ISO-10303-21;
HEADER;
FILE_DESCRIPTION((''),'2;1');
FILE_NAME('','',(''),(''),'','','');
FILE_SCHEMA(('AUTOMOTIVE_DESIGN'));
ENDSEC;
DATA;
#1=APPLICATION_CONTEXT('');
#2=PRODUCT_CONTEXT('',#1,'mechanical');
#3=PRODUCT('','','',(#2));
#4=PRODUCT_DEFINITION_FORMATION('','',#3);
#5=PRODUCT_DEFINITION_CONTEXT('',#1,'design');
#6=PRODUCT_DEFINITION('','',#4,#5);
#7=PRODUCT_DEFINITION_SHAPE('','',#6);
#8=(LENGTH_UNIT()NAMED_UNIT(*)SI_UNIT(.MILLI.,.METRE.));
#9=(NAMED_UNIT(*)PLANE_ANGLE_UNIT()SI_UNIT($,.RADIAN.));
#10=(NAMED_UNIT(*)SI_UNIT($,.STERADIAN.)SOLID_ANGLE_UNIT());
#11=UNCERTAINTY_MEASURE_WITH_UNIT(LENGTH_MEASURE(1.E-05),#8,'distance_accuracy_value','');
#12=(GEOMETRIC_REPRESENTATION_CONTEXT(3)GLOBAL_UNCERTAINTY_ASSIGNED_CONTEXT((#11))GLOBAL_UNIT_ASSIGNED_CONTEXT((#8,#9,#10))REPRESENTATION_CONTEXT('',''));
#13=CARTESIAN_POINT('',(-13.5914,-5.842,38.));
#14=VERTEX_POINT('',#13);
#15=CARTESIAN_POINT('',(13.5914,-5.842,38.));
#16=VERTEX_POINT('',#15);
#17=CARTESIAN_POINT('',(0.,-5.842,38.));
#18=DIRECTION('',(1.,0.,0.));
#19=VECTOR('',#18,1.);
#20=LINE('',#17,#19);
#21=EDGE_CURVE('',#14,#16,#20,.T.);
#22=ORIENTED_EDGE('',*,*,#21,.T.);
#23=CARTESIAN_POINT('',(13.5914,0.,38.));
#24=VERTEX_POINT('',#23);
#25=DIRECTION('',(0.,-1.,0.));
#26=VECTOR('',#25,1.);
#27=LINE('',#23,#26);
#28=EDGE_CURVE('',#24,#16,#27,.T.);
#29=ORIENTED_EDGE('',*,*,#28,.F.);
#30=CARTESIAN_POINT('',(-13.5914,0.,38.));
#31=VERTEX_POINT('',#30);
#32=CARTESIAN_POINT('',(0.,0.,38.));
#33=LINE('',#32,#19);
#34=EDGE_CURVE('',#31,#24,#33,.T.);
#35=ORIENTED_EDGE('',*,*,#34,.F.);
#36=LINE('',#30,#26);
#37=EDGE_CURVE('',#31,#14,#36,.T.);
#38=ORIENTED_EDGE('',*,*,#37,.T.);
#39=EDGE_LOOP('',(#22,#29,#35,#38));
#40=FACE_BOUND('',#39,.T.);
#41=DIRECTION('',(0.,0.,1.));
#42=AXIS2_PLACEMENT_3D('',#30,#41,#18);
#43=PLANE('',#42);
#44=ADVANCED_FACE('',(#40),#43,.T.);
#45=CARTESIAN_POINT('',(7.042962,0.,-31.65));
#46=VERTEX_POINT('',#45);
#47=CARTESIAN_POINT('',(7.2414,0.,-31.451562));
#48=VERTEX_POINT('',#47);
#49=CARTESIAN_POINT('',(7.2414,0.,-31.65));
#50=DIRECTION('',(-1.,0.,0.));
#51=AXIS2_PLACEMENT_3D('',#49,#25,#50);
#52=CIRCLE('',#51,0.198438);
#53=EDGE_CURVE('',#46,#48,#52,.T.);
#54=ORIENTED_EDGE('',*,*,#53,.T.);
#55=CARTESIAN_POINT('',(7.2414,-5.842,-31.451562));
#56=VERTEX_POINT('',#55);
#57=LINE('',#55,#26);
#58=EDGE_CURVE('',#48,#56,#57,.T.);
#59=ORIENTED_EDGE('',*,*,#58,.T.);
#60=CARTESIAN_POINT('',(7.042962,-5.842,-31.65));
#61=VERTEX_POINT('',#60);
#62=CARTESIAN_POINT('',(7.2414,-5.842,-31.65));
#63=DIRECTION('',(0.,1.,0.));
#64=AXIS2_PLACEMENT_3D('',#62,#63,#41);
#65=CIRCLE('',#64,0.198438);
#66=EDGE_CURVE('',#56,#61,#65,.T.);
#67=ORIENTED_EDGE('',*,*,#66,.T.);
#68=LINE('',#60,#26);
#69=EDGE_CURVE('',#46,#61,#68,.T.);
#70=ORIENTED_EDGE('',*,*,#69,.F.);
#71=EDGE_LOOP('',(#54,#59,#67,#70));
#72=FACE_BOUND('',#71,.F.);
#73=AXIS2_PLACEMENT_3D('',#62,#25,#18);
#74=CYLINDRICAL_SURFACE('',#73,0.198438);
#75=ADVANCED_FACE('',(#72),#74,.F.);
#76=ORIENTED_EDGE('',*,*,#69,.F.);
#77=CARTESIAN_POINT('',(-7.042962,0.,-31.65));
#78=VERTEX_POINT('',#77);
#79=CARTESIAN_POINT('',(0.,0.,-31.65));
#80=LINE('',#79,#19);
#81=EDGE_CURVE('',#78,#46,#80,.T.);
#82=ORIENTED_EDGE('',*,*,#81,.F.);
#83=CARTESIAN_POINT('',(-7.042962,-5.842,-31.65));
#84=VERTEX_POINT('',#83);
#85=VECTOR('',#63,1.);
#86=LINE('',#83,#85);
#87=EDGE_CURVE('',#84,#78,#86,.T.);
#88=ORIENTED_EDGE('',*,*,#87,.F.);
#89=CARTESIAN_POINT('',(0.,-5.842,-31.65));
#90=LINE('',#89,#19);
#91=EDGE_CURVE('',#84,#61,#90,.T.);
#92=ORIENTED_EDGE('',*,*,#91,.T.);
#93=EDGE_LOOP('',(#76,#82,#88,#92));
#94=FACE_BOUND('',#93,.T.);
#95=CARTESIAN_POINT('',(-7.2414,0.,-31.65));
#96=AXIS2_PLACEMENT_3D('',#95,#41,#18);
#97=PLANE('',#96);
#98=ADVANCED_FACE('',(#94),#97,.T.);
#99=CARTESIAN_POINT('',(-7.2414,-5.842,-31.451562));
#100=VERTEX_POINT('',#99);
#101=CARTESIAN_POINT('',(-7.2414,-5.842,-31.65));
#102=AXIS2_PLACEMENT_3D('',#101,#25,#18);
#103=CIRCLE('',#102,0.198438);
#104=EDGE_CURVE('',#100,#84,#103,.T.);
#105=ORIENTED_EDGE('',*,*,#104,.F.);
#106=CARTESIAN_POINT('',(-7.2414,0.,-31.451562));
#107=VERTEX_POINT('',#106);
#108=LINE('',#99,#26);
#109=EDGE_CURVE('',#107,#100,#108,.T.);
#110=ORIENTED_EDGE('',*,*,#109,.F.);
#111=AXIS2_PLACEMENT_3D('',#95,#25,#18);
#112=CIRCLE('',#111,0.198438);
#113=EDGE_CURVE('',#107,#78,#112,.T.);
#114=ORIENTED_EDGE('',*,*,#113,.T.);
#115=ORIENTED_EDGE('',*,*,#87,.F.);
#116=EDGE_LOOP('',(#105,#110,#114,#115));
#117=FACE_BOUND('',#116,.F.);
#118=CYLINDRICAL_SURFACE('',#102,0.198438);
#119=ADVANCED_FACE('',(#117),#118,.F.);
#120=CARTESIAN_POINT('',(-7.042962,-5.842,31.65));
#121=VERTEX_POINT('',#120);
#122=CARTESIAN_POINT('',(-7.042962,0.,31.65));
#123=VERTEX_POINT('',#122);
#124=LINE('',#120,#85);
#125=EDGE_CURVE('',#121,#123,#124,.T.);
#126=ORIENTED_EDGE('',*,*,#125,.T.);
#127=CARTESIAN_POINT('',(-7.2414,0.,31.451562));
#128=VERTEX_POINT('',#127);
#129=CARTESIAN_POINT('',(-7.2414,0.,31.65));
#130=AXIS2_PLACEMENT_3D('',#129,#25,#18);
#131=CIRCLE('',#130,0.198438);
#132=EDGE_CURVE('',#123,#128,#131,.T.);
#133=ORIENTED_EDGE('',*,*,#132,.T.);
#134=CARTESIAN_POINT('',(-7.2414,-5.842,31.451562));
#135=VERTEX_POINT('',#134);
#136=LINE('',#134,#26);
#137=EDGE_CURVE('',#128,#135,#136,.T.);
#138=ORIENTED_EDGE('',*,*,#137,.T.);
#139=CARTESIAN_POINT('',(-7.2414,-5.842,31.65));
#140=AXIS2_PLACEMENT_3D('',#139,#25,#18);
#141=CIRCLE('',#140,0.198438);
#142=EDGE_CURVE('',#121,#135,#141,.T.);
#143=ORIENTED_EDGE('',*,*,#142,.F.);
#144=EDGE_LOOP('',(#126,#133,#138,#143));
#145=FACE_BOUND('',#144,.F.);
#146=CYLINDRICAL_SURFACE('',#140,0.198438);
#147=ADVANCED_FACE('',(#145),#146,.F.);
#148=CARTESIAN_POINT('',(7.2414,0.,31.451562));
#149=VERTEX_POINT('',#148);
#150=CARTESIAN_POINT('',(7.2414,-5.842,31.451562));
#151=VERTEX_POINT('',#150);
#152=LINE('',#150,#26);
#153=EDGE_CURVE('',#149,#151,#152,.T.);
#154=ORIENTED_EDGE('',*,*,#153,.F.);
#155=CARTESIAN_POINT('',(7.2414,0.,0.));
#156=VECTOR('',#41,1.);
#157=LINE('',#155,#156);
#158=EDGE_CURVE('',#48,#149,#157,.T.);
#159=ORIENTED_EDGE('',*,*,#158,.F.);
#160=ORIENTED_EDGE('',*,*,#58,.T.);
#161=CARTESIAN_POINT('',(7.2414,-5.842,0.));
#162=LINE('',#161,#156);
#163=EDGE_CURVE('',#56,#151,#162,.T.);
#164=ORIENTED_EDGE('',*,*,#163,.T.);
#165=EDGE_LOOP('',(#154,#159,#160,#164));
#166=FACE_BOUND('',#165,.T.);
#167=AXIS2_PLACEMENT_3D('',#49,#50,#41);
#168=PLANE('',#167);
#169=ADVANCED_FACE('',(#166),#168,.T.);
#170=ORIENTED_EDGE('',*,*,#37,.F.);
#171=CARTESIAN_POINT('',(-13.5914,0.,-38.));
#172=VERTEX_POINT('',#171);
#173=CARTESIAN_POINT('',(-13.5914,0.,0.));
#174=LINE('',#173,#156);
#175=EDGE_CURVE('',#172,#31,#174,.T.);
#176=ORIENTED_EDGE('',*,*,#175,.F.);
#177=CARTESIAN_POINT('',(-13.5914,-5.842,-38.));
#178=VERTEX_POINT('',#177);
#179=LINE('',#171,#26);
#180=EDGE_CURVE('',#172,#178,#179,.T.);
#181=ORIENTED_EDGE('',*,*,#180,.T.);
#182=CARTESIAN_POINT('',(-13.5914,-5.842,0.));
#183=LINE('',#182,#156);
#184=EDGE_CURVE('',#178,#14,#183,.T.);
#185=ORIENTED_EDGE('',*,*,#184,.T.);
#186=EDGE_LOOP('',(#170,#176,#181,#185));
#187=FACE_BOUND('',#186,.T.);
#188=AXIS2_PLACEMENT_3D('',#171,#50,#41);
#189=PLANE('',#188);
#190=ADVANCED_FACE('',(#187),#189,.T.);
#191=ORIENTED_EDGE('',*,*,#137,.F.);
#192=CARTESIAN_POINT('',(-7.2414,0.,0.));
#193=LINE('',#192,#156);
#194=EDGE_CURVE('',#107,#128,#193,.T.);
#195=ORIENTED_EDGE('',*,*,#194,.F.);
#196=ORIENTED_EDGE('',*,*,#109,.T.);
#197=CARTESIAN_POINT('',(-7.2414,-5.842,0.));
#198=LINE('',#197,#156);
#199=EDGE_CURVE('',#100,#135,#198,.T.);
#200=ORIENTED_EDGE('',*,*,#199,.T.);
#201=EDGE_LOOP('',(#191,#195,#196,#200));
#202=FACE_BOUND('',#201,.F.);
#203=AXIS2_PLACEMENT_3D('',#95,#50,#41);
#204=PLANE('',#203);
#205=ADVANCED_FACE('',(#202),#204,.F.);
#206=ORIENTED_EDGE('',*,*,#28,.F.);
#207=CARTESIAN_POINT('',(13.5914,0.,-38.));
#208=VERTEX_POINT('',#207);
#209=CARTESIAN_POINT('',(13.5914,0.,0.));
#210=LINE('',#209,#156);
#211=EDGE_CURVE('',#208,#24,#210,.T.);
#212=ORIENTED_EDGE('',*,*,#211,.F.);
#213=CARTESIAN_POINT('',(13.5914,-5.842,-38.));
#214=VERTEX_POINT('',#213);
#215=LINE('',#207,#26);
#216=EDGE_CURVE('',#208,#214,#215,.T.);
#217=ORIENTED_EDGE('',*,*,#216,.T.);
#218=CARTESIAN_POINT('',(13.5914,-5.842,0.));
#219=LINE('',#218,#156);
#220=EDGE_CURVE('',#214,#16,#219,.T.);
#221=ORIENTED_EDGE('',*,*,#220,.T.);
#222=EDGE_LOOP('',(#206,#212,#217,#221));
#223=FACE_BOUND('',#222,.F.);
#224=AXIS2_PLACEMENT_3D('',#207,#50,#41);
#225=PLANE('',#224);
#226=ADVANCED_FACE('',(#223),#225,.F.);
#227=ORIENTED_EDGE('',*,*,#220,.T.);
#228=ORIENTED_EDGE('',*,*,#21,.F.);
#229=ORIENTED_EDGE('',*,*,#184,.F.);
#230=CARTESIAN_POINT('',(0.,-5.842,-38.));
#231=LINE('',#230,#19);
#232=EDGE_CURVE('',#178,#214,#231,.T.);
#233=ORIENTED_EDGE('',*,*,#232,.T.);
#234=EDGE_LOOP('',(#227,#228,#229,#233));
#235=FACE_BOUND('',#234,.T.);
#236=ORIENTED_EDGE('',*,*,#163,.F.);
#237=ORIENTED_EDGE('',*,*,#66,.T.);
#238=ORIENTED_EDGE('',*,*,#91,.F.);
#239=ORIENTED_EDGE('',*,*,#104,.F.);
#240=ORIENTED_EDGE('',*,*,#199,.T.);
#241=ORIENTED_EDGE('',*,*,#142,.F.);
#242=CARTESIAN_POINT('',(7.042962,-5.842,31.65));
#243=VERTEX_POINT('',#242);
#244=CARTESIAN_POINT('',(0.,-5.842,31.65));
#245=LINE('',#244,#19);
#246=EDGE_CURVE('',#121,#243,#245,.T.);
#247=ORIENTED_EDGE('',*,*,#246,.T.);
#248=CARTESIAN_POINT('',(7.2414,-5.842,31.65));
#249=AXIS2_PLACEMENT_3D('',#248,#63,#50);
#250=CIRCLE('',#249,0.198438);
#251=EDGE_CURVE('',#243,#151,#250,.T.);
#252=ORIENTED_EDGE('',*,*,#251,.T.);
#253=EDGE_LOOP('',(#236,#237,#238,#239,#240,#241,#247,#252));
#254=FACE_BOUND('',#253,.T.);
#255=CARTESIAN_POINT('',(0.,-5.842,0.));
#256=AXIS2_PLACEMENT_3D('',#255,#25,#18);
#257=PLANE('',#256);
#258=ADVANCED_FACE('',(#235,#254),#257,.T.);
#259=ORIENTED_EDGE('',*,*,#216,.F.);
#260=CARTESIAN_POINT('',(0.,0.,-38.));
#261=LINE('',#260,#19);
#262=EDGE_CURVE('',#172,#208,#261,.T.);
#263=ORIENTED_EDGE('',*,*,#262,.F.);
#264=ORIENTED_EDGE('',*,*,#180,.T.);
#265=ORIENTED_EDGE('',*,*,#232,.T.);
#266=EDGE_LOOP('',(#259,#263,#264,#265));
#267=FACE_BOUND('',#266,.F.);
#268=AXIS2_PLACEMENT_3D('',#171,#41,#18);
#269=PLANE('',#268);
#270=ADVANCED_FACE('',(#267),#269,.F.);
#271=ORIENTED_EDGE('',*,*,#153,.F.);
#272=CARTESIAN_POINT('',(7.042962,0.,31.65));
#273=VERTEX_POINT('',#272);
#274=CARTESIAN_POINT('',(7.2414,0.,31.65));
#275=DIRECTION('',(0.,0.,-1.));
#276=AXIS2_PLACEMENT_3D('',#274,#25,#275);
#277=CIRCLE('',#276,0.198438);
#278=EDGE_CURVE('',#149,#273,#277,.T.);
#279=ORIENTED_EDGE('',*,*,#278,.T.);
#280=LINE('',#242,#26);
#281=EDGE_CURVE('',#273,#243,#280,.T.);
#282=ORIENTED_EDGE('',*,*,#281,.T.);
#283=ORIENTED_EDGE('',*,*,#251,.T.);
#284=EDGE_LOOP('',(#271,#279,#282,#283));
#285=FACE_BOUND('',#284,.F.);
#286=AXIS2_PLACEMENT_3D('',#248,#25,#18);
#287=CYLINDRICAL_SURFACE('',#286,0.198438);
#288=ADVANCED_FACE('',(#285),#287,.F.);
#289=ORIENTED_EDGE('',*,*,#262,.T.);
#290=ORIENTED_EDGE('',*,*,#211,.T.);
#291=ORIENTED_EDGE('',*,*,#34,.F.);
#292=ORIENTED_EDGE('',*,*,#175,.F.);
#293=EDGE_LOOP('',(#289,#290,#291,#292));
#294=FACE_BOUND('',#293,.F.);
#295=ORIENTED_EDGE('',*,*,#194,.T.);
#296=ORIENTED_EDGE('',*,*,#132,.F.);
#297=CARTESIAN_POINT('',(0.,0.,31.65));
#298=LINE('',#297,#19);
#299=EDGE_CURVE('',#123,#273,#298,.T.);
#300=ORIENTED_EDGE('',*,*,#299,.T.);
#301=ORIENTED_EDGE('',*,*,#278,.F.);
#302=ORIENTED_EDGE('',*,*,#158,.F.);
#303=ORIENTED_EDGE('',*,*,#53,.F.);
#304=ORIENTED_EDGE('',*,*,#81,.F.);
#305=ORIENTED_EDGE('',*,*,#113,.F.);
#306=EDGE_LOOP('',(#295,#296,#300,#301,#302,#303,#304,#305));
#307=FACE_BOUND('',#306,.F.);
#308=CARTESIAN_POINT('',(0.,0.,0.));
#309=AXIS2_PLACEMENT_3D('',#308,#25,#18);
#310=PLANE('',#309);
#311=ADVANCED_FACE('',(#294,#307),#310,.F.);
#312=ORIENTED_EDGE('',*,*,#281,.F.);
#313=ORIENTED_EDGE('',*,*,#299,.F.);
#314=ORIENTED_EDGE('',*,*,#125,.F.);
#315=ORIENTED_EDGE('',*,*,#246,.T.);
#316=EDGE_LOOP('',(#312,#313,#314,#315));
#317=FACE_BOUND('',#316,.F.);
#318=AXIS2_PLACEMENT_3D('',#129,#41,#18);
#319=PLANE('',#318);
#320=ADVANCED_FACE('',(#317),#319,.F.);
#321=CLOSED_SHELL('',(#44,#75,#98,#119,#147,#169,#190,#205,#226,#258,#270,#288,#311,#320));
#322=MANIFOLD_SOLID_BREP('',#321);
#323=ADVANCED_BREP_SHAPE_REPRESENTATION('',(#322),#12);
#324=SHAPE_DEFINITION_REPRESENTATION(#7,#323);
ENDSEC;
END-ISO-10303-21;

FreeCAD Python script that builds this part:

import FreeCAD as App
import Part
import Sketcher
from FreeCAD import Vector


def add_polygon(sketch, points):
    """Adds a closed chain of lines whose ends are joined by coincident constraints."""
    first, n = sketch.GeometryCount, len(points)
    for a, b in zip(points, points[1:] + points[:1]):
        sketch.addGeometry(Part.LineSegment(App.Vector(*a, 0), App.Vector(*b, 0)), False)
    for i in range(n):
        sketch.addConstraint(Sketcher.Constraint("Coincident", first + i, 2, first + (i + 1) % n, 1))

doc = App.newDocument("Part")
body = doc.addObject("PartDesign::Body", "Body")

sketch1 = body.newObject("Sketcher::SketchObject", "Sketch")
sketch1.AttachmentSupport = (doc.getObject("XZ_Plane"), [""])
sketch1.MapMode = "FlatFace"
add_polygon(sketch1, [(-14, 38), (-14, -38), (14, -38), (14, 38)])
add_polygon(sketch1, [(7, -32), (-7, -32), (-7, 32), (7, 32)])
sketch1.addConstraint([
    Sketcher.Constraint("Vertical", 0),
    Sketcher.Constraint("Horizontal", 1),
    Sketcher.Constraint("Vertical", 2),
    Sketcher.Constraint("Horizontal", 3),
    Sketcher.Constraint("Horizontal", 4),
    Sketcher.Constraint("Vertical", 5),
    Sketcher.Constraint("Horizontal", 6),
    Sketcher.Constraint("Vertical", 7),
    Sketcher.Constraint("Symmetric", 0, 2, 2, 2, -1, 1),
    Sketcher.Constraint("Symmetric", 4, 2, 6, 2, -1, 1),
    Sketcher.Constraint("DistanceY", 0, 2, 0, 1, 76.0),
    Sketcher.Constraint("DistanceY", 5, 1, 5, 2, 63.3),
    Sketcher.Constraint("DistanceX", 0, 2, 4, 2, 6.35),
    Sketcher.Constraint("DistanceX", 1, 1, 1, 2, 27.1828),
])
pad1 = body.newObject("PartDesign::Pad", "Pad")
pad1.Profile = sketch1
pad1.Length = 5.842

sketch2 = body.newObject("Sketcher::SketchObject", "Sketch001")
sketch2.AttachmentSupport = (doc.getObject("XZ_Plane"), [""])
sketch2.MapMode = "FlatFace"
sketch2.AttachmentOffset = App.Placement(Vector(0, 0, 5.842), App.Rotation())
sketch2.addGeometry([
    Part.Circle(Vector(-7.24, 31.65, 0), Vector(0, 0, 1), 0.2),
    Part.Circle(Vector(7.24, 31.65, 0), Vector(0, 0, 1), 0.2),
    Part.Circle(Vector(-7.24, -31.65, 0), Vector(0, 0, 1), 0.2),
    Part.Circle(Vector(7.24, -31.65, 0), Vector(0, 0, 1), 0.2),
], False)
sketch2.addConstraint([
    Sketcher.Constraint("Equal", 0, 1),
    Sketcher.Constraint("Equal", 1, 2),
    Sketcher.Constraint("Equal", 2, 3),
    Sketcher.Constraint("Symmetric", 1, 3, 2, 3, -1, 1),
    Sketcher.Constraint("Symmetric", 0, 3, 3, 3, -1, 1),
    Sketcher.Constraint("Symmetric", 0, 3, 1, 3, -2),
    Sketcher.Constraint("DistanceY", 2, 3, 0, 3, 63.3),
    Sketcher.Constraint("Diameter", 0, 0.396876),
    Sketcher.Constraint("DistanceX", 0, 3, -1, 1, 7.2414),
])
pocket1 = body.newObject("PartDesign::Pocket", "Pocket")
pocket1.Profile = sketch2
pocket1.Type = "ThroughAll"

doc.recompute()
